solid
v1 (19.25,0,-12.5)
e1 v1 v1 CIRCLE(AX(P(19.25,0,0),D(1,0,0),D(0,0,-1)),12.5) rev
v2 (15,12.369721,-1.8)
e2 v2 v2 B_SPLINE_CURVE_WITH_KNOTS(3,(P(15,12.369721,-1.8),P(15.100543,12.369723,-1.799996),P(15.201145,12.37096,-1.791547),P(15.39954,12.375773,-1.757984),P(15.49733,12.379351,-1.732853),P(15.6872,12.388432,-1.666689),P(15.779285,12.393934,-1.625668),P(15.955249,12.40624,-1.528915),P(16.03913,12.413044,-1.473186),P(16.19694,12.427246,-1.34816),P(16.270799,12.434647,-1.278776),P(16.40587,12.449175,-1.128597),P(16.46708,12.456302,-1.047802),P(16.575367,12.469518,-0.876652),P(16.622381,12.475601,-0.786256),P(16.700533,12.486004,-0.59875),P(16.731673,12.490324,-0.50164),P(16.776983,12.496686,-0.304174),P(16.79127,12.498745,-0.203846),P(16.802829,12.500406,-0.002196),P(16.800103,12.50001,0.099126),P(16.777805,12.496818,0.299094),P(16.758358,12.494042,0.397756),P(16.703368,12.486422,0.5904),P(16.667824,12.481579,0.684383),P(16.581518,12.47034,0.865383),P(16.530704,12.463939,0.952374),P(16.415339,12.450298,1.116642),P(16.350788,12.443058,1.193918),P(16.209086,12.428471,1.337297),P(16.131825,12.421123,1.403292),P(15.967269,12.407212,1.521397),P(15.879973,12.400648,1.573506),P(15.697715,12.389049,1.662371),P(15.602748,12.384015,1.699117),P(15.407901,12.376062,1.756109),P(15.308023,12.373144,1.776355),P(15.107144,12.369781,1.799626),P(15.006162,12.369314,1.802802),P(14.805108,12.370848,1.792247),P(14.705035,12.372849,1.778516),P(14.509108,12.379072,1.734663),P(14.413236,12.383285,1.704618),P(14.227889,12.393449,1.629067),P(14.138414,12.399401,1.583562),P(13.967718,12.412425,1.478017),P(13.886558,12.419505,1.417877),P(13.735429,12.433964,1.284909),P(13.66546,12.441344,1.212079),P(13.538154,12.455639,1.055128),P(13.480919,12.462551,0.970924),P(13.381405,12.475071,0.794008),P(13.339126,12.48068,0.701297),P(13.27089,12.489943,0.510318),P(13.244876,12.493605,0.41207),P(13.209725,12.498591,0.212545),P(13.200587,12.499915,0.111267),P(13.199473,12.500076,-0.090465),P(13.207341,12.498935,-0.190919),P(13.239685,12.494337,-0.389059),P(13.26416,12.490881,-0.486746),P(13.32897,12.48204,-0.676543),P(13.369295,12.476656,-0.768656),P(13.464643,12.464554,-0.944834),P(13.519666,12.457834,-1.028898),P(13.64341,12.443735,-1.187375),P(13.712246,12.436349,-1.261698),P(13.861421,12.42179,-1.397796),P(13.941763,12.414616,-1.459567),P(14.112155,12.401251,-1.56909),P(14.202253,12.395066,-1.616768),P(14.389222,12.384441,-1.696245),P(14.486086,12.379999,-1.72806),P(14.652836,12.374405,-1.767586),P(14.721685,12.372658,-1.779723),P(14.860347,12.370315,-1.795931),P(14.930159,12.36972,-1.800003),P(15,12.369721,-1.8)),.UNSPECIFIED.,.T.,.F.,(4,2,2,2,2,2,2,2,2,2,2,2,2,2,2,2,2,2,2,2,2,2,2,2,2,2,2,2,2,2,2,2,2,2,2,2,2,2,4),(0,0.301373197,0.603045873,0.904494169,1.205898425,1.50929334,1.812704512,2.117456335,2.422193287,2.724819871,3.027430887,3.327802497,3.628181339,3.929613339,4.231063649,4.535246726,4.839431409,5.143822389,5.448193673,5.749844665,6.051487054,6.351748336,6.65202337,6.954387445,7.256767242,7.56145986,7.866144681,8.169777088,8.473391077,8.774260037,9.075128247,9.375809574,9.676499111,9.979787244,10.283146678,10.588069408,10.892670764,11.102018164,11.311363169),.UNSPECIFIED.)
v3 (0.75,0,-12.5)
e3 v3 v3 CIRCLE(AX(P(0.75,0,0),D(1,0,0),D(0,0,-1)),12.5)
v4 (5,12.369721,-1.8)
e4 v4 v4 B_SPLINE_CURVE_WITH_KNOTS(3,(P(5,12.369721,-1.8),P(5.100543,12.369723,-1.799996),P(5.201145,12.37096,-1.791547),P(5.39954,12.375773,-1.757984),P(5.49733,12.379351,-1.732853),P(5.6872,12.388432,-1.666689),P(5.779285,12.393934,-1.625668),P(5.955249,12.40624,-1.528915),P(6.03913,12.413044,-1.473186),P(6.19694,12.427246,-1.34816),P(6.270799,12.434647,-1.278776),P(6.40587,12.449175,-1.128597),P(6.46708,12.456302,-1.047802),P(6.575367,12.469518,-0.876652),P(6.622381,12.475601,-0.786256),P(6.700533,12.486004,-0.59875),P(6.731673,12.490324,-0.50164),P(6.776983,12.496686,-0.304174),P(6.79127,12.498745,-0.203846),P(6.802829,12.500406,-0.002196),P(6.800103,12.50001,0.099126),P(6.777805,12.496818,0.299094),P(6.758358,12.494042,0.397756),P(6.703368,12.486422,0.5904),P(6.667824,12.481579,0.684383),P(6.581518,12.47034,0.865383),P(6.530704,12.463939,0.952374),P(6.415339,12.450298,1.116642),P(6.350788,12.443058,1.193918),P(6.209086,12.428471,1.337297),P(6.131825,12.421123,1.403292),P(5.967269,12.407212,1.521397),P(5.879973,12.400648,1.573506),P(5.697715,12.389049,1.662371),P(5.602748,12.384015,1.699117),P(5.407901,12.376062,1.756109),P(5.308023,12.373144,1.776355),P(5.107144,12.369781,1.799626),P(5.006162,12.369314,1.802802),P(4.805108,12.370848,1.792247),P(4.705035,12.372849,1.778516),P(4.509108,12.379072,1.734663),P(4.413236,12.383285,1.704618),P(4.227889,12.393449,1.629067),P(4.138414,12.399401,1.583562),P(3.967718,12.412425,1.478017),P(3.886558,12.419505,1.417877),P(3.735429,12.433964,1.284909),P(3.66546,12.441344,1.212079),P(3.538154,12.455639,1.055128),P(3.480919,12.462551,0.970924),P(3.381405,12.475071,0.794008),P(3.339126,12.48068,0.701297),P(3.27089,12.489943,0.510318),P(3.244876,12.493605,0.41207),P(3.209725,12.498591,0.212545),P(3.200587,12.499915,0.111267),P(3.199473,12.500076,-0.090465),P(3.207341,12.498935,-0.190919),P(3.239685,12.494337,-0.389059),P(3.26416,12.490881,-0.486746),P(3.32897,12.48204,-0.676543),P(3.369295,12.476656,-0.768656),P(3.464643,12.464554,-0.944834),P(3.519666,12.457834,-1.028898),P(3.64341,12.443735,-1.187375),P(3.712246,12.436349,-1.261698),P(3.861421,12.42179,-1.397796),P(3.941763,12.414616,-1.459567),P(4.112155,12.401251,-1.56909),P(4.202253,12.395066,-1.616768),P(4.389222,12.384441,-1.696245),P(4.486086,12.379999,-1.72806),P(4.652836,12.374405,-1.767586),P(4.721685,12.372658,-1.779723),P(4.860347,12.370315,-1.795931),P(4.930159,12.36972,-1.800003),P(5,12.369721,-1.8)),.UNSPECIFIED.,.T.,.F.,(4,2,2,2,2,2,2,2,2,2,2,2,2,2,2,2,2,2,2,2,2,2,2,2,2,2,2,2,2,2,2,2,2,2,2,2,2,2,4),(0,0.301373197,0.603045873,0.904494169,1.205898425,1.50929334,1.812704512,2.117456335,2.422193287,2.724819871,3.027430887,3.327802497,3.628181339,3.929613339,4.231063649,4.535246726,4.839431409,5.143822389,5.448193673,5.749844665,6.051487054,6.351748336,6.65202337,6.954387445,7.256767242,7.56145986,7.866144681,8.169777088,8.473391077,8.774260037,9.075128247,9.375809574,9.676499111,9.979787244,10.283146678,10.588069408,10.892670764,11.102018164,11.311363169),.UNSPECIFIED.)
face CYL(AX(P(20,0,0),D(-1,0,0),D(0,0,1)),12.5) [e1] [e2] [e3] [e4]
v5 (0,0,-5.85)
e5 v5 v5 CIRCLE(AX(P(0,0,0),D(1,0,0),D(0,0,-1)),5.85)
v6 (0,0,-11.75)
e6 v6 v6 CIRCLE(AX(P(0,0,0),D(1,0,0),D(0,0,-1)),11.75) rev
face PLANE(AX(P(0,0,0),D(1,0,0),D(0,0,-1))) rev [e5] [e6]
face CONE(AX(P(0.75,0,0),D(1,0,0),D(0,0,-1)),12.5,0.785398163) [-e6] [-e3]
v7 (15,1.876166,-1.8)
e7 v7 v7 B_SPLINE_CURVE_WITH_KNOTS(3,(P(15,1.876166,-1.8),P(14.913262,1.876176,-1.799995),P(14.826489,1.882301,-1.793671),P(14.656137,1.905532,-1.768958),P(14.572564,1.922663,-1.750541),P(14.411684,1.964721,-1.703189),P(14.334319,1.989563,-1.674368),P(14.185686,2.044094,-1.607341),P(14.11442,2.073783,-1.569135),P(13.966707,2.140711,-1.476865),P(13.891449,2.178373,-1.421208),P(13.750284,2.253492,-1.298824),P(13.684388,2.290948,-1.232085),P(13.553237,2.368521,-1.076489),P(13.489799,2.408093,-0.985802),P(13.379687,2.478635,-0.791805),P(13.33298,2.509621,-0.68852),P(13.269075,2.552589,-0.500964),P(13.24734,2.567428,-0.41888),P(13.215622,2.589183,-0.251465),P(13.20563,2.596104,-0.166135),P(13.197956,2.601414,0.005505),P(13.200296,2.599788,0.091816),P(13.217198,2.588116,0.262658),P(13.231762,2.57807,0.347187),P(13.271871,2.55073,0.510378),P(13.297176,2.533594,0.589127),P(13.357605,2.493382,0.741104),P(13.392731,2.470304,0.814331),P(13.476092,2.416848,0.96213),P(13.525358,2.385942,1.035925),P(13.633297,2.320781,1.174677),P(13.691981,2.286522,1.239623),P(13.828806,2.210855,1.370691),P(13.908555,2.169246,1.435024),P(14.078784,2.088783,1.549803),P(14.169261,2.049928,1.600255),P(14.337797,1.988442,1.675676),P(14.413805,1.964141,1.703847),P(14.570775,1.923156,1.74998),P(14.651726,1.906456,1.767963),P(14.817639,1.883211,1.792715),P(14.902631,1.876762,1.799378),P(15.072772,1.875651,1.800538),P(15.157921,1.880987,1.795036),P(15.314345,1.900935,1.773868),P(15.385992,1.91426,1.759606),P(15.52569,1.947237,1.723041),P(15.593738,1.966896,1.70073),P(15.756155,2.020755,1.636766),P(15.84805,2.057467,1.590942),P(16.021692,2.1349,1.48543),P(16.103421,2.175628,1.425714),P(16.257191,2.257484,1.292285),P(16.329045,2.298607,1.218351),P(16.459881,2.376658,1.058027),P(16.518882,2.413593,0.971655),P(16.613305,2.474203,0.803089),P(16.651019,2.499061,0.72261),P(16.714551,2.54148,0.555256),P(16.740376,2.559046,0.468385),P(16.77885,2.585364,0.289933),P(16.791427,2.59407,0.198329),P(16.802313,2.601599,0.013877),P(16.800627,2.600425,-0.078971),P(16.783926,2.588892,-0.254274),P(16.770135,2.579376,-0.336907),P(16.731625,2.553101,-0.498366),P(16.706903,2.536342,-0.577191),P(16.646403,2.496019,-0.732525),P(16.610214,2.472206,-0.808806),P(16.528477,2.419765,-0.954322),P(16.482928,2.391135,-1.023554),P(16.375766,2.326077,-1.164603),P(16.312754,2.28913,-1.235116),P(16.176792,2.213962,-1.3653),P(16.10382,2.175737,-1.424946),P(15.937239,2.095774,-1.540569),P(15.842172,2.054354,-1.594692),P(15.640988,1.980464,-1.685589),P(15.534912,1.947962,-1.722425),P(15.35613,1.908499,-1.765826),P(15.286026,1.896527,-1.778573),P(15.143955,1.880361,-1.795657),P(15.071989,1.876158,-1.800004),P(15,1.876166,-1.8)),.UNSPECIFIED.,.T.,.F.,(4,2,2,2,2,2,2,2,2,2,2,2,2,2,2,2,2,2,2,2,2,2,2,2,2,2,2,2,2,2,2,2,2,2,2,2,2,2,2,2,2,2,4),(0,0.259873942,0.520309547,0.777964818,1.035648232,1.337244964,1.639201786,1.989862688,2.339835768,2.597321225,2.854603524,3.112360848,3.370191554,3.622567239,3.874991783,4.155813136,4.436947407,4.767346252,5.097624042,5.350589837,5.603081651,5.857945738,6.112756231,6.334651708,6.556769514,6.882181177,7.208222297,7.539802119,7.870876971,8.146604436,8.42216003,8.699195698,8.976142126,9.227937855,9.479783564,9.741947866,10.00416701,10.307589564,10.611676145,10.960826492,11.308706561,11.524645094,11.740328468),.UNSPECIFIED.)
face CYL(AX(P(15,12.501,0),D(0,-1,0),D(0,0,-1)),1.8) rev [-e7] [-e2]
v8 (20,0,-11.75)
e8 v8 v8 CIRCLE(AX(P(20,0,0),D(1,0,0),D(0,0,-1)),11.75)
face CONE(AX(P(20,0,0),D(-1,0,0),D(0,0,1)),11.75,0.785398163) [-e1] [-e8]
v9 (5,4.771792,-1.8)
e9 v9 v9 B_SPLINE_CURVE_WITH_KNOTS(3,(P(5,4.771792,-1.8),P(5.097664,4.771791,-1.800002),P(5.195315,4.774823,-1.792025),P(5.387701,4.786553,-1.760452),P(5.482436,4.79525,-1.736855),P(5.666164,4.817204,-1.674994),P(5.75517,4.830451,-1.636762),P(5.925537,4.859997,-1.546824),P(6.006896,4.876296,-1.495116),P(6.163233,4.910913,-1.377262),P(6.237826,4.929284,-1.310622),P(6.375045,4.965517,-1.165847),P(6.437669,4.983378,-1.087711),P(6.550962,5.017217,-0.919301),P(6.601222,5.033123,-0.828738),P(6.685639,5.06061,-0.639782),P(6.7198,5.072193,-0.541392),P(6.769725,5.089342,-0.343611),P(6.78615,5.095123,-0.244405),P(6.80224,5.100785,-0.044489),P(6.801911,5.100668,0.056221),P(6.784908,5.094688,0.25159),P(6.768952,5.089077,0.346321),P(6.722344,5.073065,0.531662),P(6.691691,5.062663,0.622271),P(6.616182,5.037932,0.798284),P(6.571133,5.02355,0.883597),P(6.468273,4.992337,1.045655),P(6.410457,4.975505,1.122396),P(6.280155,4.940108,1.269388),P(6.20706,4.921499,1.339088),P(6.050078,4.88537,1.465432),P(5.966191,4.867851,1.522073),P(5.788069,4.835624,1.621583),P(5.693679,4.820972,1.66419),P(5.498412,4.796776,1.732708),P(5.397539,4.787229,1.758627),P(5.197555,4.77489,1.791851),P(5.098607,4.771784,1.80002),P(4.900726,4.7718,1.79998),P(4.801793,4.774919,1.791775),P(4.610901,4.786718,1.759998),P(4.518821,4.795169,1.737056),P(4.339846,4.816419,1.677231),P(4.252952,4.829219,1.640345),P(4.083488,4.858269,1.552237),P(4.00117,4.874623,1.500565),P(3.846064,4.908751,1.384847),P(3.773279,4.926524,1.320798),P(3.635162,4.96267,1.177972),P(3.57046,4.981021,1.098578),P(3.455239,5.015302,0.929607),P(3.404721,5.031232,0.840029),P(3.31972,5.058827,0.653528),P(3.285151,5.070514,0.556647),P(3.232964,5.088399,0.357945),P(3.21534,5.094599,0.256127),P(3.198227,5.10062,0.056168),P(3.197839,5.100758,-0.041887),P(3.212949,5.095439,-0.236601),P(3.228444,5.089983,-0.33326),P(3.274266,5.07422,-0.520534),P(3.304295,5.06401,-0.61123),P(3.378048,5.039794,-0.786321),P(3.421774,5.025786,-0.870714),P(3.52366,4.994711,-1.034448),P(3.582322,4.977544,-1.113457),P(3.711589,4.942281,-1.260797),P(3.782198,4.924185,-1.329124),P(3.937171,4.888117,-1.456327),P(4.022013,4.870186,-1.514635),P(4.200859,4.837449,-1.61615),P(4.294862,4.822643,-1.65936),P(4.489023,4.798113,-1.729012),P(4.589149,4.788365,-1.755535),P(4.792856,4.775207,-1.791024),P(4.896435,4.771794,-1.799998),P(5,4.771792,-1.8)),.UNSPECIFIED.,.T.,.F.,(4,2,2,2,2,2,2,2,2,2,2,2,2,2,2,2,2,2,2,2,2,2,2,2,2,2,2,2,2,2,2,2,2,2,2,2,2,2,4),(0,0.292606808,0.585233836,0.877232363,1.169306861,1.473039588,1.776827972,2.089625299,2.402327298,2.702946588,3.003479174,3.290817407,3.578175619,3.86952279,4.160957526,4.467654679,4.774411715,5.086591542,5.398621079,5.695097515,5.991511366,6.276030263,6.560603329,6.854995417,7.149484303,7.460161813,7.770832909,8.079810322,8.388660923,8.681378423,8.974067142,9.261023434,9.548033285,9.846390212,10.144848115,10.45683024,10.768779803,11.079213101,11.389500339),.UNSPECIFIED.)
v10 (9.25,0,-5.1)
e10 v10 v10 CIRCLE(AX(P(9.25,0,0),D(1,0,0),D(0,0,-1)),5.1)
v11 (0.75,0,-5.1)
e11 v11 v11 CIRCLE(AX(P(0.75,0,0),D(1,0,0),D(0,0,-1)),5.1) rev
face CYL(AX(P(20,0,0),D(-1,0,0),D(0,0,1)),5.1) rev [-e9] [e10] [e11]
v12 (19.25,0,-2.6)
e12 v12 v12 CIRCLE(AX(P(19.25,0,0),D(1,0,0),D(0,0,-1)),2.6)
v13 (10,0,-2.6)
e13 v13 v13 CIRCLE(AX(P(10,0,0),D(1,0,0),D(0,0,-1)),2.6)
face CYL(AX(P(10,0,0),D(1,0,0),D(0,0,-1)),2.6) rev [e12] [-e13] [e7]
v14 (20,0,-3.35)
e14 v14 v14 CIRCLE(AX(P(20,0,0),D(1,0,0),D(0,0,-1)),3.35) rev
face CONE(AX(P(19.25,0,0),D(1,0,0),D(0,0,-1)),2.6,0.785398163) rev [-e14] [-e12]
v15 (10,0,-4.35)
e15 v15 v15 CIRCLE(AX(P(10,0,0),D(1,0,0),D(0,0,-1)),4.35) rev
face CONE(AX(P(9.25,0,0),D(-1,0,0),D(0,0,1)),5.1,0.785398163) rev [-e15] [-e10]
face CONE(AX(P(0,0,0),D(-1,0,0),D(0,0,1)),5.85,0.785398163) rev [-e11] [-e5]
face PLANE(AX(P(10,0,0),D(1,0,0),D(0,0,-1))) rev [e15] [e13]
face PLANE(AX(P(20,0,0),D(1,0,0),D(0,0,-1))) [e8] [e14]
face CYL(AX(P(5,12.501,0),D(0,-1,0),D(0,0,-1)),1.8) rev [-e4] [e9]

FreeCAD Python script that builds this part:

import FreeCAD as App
import Part
import Sketcher
Q = App.Units.Quantity


def edges_at(feature, points):
    """Names of the edges that pass closest to the given points."""
    edges = feature.Shape.Edges
    near = lambda p: min(range(len(edges)), key=lambda i: edges[i].distToShape(Part.Vertex(*p))[0])
    return sorted({f"Edge{near(p) + 1}" for p in points})

doc = App.newDocument("Part")
body = doc.addObject("PartDesign::Body", "Body")

# Sketch on YZ plane
sketch1 = body.newObject("Sketcher::SketchObject", "Sketch")
sketch1.AttachmentSupport = (doc.getObject("YZ_Plane"), [""])
sketch1.MapMode = "FlatFace"
sketch1.addGeometry(Part.Circle(App.Vector(0, 0, 0), App.Vector(0, 0, 1), 12.5), False)
sketch1.addGeometry(Part.Circle(App.Vector(0, 0, 0), App.Vector(0, 0, 1), 5.1), False)
sketch1.addConstraint(Sketcher.Constraint("Coincident", 0, 3, -1, 1))
sketch1.addConstraint(Sketcher.Constraint("Coincident", 1, 3, -1, 1))
sketch1.addConstraint(Sketcher.Constraint("Diameter", 0, Q("25 mm")))
sketch1.addConstraint(Sketcher.Constraint("Diameter", 1, Q("10.2 mm")))
pad1 = body.newObject("PartDesign::Pad", "Pad")
pad1.Profile = sketch1
pad1.Length = 20

# Sketch on YZ plane
sketch2 = body.newObject("Sketcher::SketchObject", "Sketch001")
sketch2.AttachmentSupport = (doc.getObject("YZ_Plane"), [""])
sketch2.MapMode = "FlatFace"
sketch2.AttachmentOffset = App.Placement(App.Vector(0, 0, 20), App.Rotation())
sketch2.addGeometry(Part.Circle(App.Vector(0, 0, 0), App.Vector(0, 0, 1), 5.1), False)
sketch2.addGeometry(Part.Circle(App.Vector(0, 0, 0), App.Vector(0, 0, 1), 2.6), False)
sketch2.addConstraint(Sketcher.Constraint("Coincident", 0, 3, -1, 1))
sketch2.addConstraint(Sketcher.Constraint("Coincident", 1, 3, -1, 1))
sketch2.addConstraint(Sketcher.Constraint("Diameter", 0, Q("10.2 mm")))
sketch2.addConstraint(Sketcher.Constraint("Diameter", 1, Q("5.2 mm")))
pad2 = body.newObject("PartDesign::Pad", "Pad001")
pad2.Profile = sketch2
pad2.Length = 10
pad2.Reversed = True

# Sketch on XZ plane
sketch3 = body.newObject("Sketcher::SketchObject", "Sketch002")
sketch3.AttachmentSupport = (doc.getObject("XZ_Plane"), [""])
sketch3.MapMode = "FlatFace"
sketch3.addGeometry(Part.Circle(App.Vector(5, 0, 0), App.Vector(0, 0, 1), 1.8), False)
sketch3.addConstraint(Sketcher.Constraint("PointOnObject", 0, 3, -1))
sketch3.addConstraint(Sketcher.Constraint("Diameter", 0, Q("3.6 mm")))
sketch3.addConstraint(Sketcher.Constraint("DistanceX", -1, 1, 0, 3, Q("5 mm")))
pocket1 = body.newObject("PartDesign::Pocket", "Pocket")
pocket1.Profile = sketch3
pocket1.Length = 12.5

# Sketch on XZ plane
sketch4 = body.newObject("Sketcher::SketchObject", "Sketch003")
sketch4.AttachmentSupport = (doc.getObject("XZ_Plane"), [""])
sketch4.MapMode = "FlatFace"
sketch4.addGeometry(Part.Circle(App.Vector(15, 0, 0), App.Vector(0, 0, 1), 1.8), False)
sketch4.addConstraint(Sketcher.Constraint("PointOnObject", 0, 3, -1))
sketch4.addConstraint(Sketcher.Constraint("Diameter", 0, Q("3.6 mm")))
sketch4.addConstraint(Sketcher.Constraint("DistanceX", -1, 1, 0, 3, Q("15 mm")))
pocket2 = body.newObject("PartDesign::Pocket", "Pocket001")
pocket2.Profile = sketch4
pocket2.Length = 12.5
doc.recompute()

chamfer = body.newObject("PartDesign::Chamfer", "Chamfer")
chamfer.Base = (pocket2, edges_at(pocket2, [
    (10, 0, 5.1),
    (20, 0, 2.6),
    (0, 0, 12.5),
    (20, 0, 12.5),
    (0, 0, 5.1),
]))
chamfer.Size = 0.75

doc.recompute()
